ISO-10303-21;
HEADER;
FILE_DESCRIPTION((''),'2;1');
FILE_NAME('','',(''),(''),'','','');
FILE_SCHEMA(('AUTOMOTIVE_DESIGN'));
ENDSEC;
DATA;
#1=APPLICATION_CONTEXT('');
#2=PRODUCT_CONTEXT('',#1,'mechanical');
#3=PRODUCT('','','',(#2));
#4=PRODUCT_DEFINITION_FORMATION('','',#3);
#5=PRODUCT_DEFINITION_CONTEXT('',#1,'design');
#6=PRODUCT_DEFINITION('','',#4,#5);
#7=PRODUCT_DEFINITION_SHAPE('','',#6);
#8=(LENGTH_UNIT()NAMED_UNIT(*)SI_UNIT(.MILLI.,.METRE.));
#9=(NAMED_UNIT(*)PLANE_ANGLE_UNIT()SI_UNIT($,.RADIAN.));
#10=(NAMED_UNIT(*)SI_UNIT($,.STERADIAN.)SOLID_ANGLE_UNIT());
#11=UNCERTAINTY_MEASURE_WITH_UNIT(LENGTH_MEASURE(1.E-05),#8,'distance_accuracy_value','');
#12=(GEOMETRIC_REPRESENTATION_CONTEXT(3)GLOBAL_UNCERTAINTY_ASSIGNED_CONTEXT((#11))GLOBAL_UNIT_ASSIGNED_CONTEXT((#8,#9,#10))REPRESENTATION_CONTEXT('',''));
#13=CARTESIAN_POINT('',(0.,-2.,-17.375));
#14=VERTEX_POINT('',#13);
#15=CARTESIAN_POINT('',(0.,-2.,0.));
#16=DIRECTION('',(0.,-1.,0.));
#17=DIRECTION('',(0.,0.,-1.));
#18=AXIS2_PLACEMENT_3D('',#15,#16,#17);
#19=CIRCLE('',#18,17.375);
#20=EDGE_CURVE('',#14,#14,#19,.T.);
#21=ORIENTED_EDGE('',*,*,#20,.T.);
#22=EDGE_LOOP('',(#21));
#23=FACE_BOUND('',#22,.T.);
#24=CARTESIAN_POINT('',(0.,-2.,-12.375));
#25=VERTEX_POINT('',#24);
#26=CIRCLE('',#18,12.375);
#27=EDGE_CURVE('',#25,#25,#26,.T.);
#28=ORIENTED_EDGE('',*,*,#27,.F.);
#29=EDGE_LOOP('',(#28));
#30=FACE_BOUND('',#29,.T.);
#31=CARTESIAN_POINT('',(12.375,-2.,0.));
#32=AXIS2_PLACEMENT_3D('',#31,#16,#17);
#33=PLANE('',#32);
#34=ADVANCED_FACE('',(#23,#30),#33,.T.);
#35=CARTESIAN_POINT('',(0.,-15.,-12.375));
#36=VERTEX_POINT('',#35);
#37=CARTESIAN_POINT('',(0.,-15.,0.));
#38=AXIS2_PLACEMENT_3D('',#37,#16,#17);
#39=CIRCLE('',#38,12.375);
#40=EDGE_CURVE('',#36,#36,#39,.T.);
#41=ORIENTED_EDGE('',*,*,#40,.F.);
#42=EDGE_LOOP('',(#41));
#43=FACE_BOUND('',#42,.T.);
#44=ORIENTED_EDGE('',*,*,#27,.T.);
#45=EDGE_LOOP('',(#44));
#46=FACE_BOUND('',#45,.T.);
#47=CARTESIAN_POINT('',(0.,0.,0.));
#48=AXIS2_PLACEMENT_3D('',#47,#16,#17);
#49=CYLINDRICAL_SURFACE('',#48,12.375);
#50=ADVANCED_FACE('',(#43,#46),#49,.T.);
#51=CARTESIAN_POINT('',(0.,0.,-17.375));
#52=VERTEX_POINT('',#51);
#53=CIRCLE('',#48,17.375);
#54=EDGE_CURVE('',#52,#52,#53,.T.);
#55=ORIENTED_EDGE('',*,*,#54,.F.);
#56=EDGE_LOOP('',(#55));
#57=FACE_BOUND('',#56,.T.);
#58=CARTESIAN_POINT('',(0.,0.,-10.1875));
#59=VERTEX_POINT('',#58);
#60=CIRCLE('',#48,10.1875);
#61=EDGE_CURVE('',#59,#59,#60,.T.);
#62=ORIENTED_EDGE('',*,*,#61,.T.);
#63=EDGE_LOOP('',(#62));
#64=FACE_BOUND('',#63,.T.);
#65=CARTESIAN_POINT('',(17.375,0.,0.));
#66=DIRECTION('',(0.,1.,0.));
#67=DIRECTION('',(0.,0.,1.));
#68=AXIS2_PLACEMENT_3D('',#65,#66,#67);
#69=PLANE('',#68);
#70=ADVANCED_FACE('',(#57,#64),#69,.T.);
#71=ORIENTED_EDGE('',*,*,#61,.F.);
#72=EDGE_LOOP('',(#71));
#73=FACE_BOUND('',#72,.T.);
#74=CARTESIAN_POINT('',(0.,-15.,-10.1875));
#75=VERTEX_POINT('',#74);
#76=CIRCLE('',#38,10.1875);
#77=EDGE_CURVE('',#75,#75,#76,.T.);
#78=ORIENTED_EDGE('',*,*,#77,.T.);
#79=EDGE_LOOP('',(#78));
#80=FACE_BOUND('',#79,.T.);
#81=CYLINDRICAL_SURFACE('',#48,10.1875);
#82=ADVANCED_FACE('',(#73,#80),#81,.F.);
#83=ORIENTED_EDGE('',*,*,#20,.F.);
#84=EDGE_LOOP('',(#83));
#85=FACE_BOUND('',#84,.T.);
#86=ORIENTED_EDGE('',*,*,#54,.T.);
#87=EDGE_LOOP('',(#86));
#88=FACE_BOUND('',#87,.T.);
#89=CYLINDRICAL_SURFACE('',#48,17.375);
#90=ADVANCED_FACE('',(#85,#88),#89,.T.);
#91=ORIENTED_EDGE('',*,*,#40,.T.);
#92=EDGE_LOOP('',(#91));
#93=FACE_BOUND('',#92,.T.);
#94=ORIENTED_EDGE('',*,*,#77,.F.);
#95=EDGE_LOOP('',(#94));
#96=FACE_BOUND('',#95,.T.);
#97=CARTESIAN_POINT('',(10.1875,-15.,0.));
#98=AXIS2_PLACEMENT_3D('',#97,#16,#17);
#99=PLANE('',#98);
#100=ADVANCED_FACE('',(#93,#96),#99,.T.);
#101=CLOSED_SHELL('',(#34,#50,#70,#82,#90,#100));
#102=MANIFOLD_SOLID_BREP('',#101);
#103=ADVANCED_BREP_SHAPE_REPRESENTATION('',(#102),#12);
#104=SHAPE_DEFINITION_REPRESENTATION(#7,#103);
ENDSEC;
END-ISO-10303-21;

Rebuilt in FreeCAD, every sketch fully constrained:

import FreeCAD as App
import Part
import Sketcher


def add_polygon(sketch, points):
    """Adds a closed chain of lines whose ends are joined by coincident constraints."""
    first, n = sketch.GeometryCount, len(points)
    for a, b in zip(points, points[1:] + points[:1]):
        sketch.addGeometry(Part.LineSegment(App.Vector(*a, 0), App.Vector(*b, 0)), False)
    for i in range(n):
        sketch.addConstraint(Sketcher.Constraint("Coincident", first + i, 2, first + (i + 1) % n, 1))

doc = App.newDocument("Part")
params = doc.addObject("Spreadsheet::Sheet", "Params")
for row, (alias, value) in enumerate([
    ("sketch1_width", "5 mm"),
    ("sketch1_height", "13 mm"),
    ("sketch1_height2", "2 mm"),
    ("revolution_angle", "360 deg"),
], start=1):
    params.set(f"A{row}", alias)
    params.set(f"B{row}", "=" + value)
    params.setAlias(f"B{row}", alias)

body = doc.addObject("PartDesign::Body", "Body")

sketch1 = body.newObject("Sketcher::SketchObject", "Sketch")
sketch1.AttachmentSupport = (doc.getObject("XY_Plane"), [""])
sketch1.MapMode = "FlatFace"
add_polygon(sketch1, [(10.1875, -15), (12.375, -15), (12.375, -2), (17.375, -2), (17.375, 0), (10.1875, 0)])
sketch1.addConstraint(Sketcher.Constraint("Horizontal", 0))
sketch1.addConstraint(Sketcher.Constraint("Vertical", 1))
sketch1.addConstraint(Sketcher.Constraint("Horizontal", 2))
sketch1.addConstraint(Sketcher.Constraint("Vertical", 3))
sketch1.addConstraint(Sketcher.Constraint("Horizontal", 4))
sketch1.addConstraint(Sketcher.Constraint("Vertical", 5))
sketch1.addConstraint(Sketcher.Constraint("PointOnObject", 3, 2, -1))
sketch1.addConstraint(Sketcher.Constraint("DistanceX", 2, 1, 2, 2, 5.0))
sketch1.addConstraint(Sketcher.Constraint("DistanceY", 1, 1, 1, 2, 13.0))
sketch1.addConstraint(Sketcher.Constraint("DistanceY", 3, 1, 3, 2, 2.0))
sketch1.addConstraint(Sketcher.Constraint("DistanceX", 0, 1, 0, 2, 2.1875))
sketch1.addConstraint(Sketcher.Constraint("DistanceX", -1, 1, 0, 2, 12.375))
sketch1.setExpression("Constraints[13]", "Params.sketch1_width")
sketch1.setExpression("Constraints[14]", "Params.sketch1_height")
sketch1.setExpression("Constraints[15]", "Params.sketch1_height2")
revolution = body.newObject("PartDesign::Revolution", "Revolution")
revolution.Profile = sketch1
revolution.ReferenceAxis = (sketch1, ["V_Axis"])
revolution.setExpression("Angle", "Params.revolution_angle")

doc.recompute()
